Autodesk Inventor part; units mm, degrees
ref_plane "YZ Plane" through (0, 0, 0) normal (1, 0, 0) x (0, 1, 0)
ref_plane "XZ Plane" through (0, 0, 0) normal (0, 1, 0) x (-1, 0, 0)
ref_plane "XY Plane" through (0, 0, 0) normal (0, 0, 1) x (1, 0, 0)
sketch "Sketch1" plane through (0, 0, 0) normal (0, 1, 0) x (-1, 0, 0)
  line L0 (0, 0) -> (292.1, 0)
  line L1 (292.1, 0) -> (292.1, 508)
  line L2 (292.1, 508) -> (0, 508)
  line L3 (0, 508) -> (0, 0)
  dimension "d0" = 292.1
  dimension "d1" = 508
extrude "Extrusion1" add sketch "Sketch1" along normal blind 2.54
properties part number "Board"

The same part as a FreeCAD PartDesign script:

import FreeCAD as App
import Part
import Sketcher
from FreeCAD import Vector
Q = App.Units.Quantity

doc = App.newDocument("Part")
params = doc.addObject("Spreadsheet::Sheet", "Params")
for row, (alias, value) in enumerate([
    ("sketch1_height", "20 in"),
    ("sketch1_width", "11.5 in"),
    ("pad1_length", "0.1 in"),
], start=1):
    params.set(f"A{row}", alias)
    params.set(f"B{row}", "=" + value)
    params.setAlias(f"B{row}", alias)

body = doc.addObject("PartDesign::Body", "Body")

# Sketch on XZ plane
sketch1 = doc.addObject("Sketcher::SketchObject", "Sketch")
body.addObject(sketch1)
sketch1.AttachmentSupport = (doc.XZ_Plane, [""])
sketch1.MapMode = "FlatFace"
sketch1.addGeometry([
    Part.LineSegment(Vector(0, 508, 0), Vector(0, 0, 0)),
    Part.LineSegment(Vector(0, 0, 0), Vector(-292, 0, 0)),
    Part.LineSegment(Vector(-292, 0, 0), Vector(-292, 508, 0)),
    Part.LineSegment(Vector(-292, 508, 0), Vector(0, 508, 0)),
], False)
sketch1.addConstraint([
    Sketcher.Constraint("Coincident", 0, 2, 1, 1),
    Sketcher.Constraint("Coincident", 1, 2, 2, 1),
    Sketcher.Constraint("Coincident", 2, 2, 3, 1),
    Sketcher.Constraint("Coincident", 3, 2, 0, 1),
    Sketcher.Constraint("Vertical", 0),
    Sketcher.Constraint("Horizontal", 1),
    Sketcher.Constraint("Vertical", 2),
    Sketcher.Constraint("Horizontal", 3),
    Sketcher.Constraint("Coincident", 0, 2, -1, 1),
    Sketcher.Constraint("DistanceY", 0, 2, 0, 1, Q("20 in")),
    Sketcher.Constraint("DistanceX", 1, 2, 1, 1, Q("11.5 in")),
])
sketch1.setExpression("Constraints[9]", "Params.sketch1_height")
sketch1.setExpression("Constraints[10]", "Params.sketch1_width")
pad1 = doc.addObject("PartDesign::Pad", "Pad")
body.addObject(pad1)
pad1.Profile = sketch1
pad1.setExpression("Length", "Params.pad1_length")
pad1.Reversed = True

doc.recompute()
